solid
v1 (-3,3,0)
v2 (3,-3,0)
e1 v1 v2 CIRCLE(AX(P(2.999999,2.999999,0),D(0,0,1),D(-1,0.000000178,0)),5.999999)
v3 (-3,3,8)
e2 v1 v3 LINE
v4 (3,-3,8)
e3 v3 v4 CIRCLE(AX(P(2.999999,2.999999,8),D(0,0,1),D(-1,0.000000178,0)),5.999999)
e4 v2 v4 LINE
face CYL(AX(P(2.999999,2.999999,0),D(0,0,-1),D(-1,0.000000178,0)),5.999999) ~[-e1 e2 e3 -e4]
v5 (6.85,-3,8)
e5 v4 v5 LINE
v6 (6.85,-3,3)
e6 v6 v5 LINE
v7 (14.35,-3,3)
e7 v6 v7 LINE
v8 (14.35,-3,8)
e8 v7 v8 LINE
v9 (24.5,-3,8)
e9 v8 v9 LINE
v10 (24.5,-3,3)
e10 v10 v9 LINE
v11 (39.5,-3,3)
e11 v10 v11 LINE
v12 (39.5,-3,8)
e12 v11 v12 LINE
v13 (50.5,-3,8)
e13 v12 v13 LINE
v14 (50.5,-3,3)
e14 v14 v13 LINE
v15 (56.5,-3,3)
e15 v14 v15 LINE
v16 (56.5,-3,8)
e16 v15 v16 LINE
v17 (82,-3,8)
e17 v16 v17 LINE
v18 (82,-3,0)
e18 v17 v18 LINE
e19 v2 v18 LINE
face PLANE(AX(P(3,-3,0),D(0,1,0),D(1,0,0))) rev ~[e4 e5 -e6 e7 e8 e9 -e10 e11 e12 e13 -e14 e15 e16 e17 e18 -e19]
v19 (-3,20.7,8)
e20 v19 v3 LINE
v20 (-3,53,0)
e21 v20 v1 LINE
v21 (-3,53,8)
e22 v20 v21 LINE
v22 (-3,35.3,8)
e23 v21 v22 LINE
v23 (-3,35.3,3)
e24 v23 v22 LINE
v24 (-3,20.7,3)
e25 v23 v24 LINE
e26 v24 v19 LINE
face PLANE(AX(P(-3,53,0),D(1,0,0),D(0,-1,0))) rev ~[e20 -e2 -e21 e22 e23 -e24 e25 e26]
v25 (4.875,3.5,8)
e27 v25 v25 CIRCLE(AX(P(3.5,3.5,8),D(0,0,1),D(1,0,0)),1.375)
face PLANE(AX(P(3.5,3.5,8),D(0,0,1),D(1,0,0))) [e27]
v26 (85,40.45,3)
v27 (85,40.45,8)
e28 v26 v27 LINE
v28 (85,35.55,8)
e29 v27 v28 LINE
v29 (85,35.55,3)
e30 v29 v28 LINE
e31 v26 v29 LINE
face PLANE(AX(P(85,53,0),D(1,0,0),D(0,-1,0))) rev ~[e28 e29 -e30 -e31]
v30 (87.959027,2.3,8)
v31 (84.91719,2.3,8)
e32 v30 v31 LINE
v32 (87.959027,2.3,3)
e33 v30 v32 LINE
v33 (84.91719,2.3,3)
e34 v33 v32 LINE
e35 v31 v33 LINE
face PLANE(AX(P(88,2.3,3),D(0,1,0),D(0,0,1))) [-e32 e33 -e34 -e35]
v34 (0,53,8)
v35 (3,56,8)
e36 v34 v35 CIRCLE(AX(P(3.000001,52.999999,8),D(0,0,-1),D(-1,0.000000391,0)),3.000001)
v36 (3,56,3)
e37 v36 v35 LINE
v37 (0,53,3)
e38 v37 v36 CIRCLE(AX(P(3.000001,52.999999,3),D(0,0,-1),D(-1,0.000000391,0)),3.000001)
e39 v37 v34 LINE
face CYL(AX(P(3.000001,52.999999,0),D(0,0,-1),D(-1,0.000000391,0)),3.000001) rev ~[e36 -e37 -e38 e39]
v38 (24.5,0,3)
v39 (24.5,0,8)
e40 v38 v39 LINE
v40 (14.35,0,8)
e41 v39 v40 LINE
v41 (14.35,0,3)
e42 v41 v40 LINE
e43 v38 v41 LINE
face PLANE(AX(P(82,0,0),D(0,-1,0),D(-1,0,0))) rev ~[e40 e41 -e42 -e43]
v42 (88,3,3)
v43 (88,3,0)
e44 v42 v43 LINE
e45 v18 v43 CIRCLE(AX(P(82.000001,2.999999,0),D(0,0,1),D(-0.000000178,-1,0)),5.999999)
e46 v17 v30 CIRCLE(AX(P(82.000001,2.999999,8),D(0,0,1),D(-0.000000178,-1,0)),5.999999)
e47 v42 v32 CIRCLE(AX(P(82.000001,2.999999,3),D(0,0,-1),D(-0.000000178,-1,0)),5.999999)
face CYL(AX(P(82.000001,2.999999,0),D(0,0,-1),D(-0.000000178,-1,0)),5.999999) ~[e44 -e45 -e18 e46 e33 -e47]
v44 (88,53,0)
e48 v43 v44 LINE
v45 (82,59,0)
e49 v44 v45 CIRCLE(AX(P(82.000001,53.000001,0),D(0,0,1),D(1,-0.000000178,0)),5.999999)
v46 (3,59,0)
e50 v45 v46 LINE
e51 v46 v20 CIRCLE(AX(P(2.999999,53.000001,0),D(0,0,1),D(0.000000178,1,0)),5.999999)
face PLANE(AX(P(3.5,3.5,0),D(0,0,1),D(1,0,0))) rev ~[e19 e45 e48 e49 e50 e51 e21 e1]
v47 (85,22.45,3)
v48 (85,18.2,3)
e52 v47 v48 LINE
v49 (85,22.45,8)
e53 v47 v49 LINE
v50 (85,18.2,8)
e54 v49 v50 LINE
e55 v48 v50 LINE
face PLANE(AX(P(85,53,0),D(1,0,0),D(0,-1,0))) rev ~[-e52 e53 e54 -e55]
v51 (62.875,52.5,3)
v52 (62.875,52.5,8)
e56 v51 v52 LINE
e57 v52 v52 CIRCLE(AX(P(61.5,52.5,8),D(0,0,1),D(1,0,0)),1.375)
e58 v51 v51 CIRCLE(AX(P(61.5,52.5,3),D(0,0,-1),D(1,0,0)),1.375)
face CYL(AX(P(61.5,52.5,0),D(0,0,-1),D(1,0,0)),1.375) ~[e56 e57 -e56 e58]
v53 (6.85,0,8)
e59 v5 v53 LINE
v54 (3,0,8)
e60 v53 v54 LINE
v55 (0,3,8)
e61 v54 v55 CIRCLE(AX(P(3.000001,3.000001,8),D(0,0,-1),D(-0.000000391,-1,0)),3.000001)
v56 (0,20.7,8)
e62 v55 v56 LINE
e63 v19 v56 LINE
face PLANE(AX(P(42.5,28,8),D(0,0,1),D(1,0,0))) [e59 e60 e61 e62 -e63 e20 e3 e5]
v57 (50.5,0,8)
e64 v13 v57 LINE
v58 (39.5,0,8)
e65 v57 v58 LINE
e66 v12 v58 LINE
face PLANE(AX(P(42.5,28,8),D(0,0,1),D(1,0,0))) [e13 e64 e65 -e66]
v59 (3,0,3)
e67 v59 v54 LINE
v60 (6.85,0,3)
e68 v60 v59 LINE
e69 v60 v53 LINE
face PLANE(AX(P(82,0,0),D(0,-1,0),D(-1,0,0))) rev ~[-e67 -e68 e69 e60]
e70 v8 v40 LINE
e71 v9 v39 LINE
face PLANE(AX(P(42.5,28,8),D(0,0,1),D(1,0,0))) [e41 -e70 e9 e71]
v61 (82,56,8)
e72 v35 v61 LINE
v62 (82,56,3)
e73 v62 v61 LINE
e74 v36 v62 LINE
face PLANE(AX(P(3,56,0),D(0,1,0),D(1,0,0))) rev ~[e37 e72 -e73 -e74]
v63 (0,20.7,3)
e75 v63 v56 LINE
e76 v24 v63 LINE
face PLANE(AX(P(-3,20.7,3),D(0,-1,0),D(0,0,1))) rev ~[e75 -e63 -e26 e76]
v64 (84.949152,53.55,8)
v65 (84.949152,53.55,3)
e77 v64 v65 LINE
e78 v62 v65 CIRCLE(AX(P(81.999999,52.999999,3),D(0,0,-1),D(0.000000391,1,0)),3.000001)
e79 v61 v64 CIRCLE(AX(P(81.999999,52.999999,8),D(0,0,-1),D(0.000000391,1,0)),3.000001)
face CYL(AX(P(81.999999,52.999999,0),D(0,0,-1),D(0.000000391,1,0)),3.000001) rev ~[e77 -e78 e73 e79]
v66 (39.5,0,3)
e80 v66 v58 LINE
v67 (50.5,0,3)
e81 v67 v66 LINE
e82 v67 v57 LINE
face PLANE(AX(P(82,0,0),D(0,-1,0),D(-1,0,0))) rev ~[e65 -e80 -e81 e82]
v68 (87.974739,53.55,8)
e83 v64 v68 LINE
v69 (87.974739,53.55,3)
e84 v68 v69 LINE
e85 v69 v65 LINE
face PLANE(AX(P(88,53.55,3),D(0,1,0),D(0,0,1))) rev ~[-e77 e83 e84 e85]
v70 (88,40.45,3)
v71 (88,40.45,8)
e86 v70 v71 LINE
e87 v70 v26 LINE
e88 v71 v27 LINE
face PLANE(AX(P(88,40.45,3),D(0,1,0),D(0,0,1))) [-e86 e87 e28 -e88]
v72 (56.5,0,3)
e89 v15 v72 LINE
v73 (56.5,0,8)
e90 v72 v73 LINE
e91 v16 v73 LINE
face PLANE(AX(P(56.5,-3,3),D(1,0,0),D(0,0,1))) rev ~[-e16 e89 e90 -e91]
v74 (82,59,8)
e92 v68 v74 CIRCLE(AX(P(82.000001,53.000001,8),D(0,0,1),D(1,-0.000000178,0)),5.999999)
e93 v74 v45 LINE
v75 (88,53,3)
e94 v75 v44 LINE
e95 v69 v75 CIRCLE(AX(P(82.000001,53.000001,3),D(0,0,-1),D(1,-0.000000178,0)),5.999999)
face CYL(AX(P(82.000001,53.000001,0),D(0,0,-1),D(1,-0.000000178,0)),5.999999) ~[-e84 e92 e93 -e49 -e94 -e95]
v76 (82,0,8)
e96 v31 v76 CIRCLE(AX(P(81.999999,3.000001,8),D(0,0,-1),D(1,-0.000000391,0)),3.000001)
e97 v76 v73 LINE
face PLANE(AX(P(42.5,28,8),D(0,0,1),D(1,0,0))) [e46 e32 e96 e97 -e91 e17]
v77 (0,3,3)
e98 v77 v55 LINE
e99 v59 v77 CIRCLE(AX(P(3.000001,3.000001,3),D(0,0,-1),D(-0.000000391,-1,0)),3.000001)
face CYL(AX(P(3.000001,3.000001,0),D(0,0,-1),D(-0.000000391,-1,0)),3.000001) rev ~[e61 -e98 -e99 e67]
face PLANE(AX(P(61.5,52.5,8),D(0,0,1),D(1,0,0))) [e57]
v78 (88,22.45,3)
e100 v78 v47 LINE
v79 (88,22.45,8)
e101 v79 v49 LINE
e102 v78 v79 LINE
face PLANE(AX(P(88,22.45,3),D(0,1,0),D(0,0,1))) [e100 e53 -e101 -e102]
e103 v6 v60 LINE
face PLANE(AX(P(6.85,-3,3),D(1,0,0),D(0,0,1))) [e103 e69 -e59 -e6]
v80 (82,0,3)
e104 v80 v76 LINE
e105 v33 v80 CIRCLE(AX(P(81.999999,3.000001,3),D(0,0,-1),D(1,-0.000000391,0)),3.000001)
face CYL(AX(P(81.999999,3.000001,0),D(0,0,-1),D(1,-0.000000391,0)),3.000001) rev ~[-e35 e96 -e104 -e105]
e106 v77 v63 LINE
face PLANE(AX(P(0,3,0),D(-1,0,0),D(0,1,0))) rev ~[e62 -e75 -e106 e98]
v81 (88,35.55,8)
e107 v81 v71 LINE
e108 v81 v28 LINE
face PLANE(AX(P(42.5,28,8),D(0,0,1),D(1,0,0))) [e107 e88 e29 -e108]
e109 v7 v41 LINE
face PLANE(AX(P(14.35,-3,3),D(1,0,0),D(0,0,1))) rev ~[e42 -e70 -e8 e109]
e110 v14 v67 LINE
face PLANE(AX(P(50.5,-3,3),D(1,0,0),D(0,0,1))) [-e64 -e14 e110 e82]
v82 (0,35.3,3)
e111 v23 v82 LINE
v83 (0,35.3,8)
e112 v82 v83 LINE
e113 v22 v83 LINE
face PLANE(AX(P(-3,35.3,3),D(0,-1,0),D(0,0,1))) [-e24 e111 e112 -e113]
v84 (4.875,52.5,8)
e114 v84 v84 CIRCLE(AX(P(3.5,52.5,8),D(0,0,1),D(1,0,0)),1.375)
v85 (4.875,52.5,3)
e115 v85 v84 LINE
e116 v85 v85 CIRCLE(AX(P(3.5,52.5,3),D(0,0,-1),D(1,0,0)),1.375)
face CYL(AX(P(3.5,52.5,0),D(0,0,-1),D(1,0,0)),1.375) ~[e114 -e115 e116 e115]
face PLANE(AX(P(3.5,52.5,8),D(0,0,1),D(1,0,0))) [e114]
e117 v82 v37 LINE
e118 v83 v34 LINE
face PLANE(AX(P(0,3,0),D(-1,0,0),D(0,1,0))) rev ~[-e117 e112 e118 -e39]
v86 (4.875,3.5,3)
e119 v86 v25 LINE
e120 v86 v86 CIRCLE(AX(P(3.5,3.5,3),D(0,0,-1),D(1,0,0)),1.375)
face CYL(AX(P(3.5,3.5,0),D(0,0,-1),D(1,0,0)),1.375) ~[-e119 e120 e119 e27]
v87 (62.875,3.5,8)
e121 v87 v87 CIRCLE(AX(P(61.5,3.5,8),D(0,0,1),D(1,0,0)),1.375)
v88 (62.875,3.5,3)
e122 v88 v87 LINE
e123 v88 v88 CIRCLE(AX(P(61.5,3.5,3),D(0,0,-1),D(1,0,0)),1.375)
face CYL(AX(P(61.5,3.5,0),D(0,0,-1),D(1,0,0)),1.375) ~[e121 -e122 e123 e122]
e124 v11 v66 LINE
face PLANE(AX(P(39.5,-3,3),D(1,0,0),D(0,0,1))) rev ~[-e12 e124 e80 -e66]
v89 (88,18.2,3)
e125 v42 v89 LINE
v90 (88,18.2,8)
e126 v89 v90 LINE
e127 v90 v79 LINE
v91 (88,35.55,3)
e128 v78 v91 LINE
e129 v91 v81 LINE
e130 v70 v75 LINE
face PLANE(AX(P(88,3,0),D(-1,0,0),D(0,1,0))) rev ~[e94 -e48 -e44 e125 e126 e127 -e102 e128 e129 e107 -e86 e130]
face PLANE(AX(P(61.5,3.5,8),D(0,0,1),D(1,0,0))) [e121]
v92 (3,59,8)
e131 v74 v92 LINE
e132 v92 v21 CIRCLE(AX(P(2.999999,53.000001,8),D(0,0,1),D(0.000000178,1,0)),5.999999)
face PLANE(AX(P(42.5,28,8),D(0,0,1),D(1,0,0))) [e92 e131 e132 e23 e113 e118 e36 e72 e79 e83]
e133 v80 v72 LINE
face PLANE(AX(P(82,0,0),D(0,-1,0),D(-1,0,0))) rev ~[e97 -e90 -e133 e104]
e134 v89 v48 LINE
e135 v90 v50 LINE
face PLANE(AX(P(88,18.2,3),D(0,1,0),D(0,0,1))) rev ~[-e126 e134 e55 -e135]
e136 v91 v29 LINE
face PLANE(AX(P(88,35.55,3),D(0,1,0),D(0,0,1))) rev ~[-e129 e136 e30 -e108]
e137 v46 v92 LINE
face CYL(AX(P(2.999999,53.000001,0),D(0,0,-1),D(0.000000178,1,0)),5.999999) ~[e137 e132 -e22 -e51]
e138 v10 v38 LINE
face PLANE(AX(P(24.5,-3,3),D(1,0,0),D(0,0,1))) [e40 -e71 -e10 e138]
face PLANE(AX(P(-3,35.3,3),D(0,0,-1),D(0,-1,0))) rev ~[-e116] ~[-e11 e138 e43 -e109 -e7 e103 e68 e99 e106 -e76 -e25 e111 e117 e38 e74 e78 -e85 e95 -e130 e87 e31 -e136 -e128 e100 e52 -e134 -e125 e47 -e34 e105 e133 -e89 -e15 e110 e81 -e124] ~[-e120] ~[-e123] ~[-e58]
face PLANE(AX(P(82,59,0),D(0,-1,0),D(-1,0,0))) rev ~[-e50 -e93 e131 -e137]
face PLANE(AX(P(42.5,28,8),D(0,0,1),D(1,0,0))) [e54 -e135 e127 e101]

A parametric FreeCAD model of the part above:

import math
import FreeCAD as App
import Part
import Sketcher
from FreeCAD import Vector
Q = App.Units.Quantity

doc = App.newDocument("Part")
params = doc.addObject("Spreadsheet::Sheet", "Params")
for row, (alias, value) in enumerate([
    ("sketch1_radius", "5.999999 mm"),
    ("sketch1_width", "79 mm"),
    ("sketch1_height", "50 mm"),
    ("pad1_length", "8 mm"),
    ("sketch2_radius", "5.999999 mm"),
    ("sketch2_width", "79 mm"),
    ("sketch2_height", "50 mm"),
    ("pad2_length", "3 mm"),
    ("sketch3_diameter", "2.75 mm"),
    ("pad3_length", "8 mm"),
    ("sketch4_height", "5 mm"),
    ("sketch4_width", "7.5 mm"),
    ("pocket1_length", "3 mm"),
    ("sketch5_width", "15 mm"),
    ("sketch5_width2", "6 mm"),
    ("sketch5_height", "5 mm"),
    ("sketch5_width3", "7.5 mm"),
    ("pocket2_length", "3 mm"),
    ("sketch6_height", "5 mm"),
    ("sketch6_width", "15.9 mm"),
    ("sketch6_width2", "13.1 mm"),
    ("pocket3_length", "3 mm"),
    ("sketch7_height", "5 mm"),
    ("sketch7_width", "14.6 mm"),
    ("pocket4_length", "3 mm"),
    ("sketch8_height", "5 mm"),
    ("sketch8_width", "15.9 mm"),
    ("sketch8_width2", "13.1 mm"),
    ("pocket5_length", "10 mm"),
], start=1):
    params.set(f"A{row}", alias)
    params.set(f"B{row}", "=" + value)
    params.setAlias(f"B{row}", alias)

body = doc.addObject("PartDesign::Body", "Body")

sketch1 = body.newObject("Sketcher::SketchObject", "Sketch")
sketch1.AttachmentSupport = (doc.getObject("XY_Plane"), [""])
sketch1.MapMode = "FlatFace"
sketch1.addGeometry(Part.LineSegment(Vector(82, 59, 0), Vector(3, 59, 0)), False)
sketch1.addGeometry(Part.ArcOfCircle(Part.Circle(Vector(2.999999, 53.000001, 0), Vector(0, 0, 1), 5.999999), math.radians(89.99999), math.radians(180.00001)), False)
sketch1.addGeometry(Part.LineSegment(Vector(-3, 53, 0), Vector(-3, 3, 0)), False)
sketch1.addGeometry(Part.ArcOfCircle(Part.Circle(Vector(2.999999, 2.999999, 0), Vector(0, 0, 1), 5.999999), math.radians(179.99999), math.radians(270.00001)), False)
sketch1.addGeometry(Part.LineSegment(Vector(3, -3, 0), Vector(82, -3, 0)), False)
sketch1.addGeometry(Part.ArcOfCircle(Part.Circle(Vector(82.000001, 2.999999, 0), Vector(0, 0, 1), 5.999999), math.radians(-90.00001), math.radians(0.00001)), False)
sketch1.addGeometry(Part.LineSegment(Vector(88, 3, 0), Vector(88, 53, 0)), False)
sketch1.addGeometry(Part.ArcOfCircle(Part.Circle(Vector(82.000001, 53.000001, 0), Vector(0, 0, 1), 5.999999), math.radians(-0.00001), math.radians(90.00001)), False)
sketch1.addGeometry(Part.ArcOfCircle(Part.Circle(Vector(81.999999, 3.000001, 0), Vector(0, 0, 1), 3.000001), math.radians(-89.999978), math.radians(-0.000022)), False)
sketch1.addGeometry(Part.LineSegment(Vector(82, 0, 0), Vector(3, 0, 0)), False)
sketch1.addGeometry(Part.ArcOfCircle(Part.Circle(Vector(3.000001, 3.000001, 0), Vector(0, 0, 1), 3.000001), math.radians(-179.999978), math.radians(-90.000022)), False)
sketch1.addGeometry(Part.LineSegment(Vector(0, 3, 0), Vector(0, 53, 0)), False)
sketch1.addGeometry(Part.ArcOfCircle(Part.Circle(Vector(3.000001, 52.999999, 0), Vector(0, 0, 1), 3.000001), math.radians(90.000022), math.radians(179.999978)), False)
sketch1.addGeometry(Part.LineSegment(Vector(3, 56, 0), Vector(82, 56, 0)), False)
sketch1.addGeometry(Part.ArcOfCircle(Part.Circle(Vector(81.999999, 52.999999, 0), Vector(0, 0, 1), 3.000001), math.radians(0.000022), math.radians(89.999978)), False)
sketch1.addGeometry(Part.LineSegment(Vector(85, 53, 0), Vector(85, 3, 0)), False)
sketch1.addConstraint(Sketcher.Constraint("Tangent", 0, 2, 1, 1))
sketch1.addConstraint(Sketcher.Constraint("Tangent", 1, 2, 2, 1))
sketch1.addConstraint(Sketcher.Constraint("Tangent", 2, 2, 3, 1))
sketch1.addConstraint(Sketcher.Constraint("Tangent", 3, 2, 4, 1))
sketch1.addConstraint(Sketcher.Constraint("Tangent", 4, 2, 5, 1))
sketch1.addConstraint(Sketcher.Constraint("Tangent", 5, 2, 6, 1))
sketch1.addConstraint(Sketcher.Constraint("Tangent", 6, 2, 7, 1))
sketch1.addConstraint(Sketcher.Constraint("Tangent", 7, 2, 0, 1))
sketch1.addConstraint(Sketcher.Constraint("Tangent", 8, 1, 9, 1))
sketch1.addConstraint(Sketcher.Constraint("Tangent", 9, 2, 10, 2))
sketch1.addConstraint(Sketcher.Constraint("Tangent", 10, 1, 11, 1))
sketch1.addConstraint(Sketcher.Constraint("Tangent", 11, 2, 12, 2))
sketch1.addConstraint(Sketcher.Constraint("Tangent", 12, 1, 13, 1))
sketch1.addConstraint(Sketcher.Constraint("Tangent", 13, 2, 14, 2))
sketch1.addConstraint(Sketcher.Constraint("Tangent", 14, 1, 15, 1))
sketch1.addConstraint(Sketcher.Constraint("Tangent", 15, 2, 8, 2))
sketch1.addConstraint(Sketcher.Constraint("Horizontal", 0))
sketch1.addConstraint(Sketcher.Constraint("Vertical", 2))
sketch1.addConstraint(Sketcher.Constraint("Horizontal", 4))
sketch1.addConstraint(Sketcher.Constraint("Vertical", 6))
sketch1.addConstraint(Sketcher.Constraint("Horizontal", 9))
sketch1.addConstraint(Sketcher.Constraint("Vertical", 11))
sketch1.addConstraint(Sketcher.Constraint("Horizontal", 13))
sketch1.addConstraint(Sketcher.Constraint("Vertical", 15))
sketch1.addConstraint(Sketcher.Constraint("Coincident", 8, 3, 5, 3))
sketch1.addConstraint(Sketcher.Constraint("Coincident", 10, 3, 3, 3))
sketch1.addConstraint(Sketcher.Constraint("Coincident", 12, 3, 1, 3))
sketch1.addConstraint(Sketcher.Constraint("Equal", 1, 3))
sketch1.addConstraint(Sketcher.Constraint("Equal", 3, 5))
sketch1.addConstraint(Sketcher.Constraint("Equal", 5, 7))
sketch1.addConstraint(Sketcher.Constraint("Equal", 12, 14))
sketch1.addConstraint(Sketcher.Constraint("Symmetric", 2, 2, 3, 2, -1, 1))
sketch1.addConstraint(Sketcher.Constraint("PointOnObject", 8, 1, -1))
sketch1.addConstraint(Sketcher.Constraint("Radius", 1, Q("5.999999 mm")))
sketch1.addConstraint(Sketcher.Constraint("DistanceX", 0, 2, 0, 1, Q("79 mm")))
sketch1.addConstraint(Sketcher.Constraint("DistanceY", 2, 2, 2, 1, Q("50 mm")))
sketch1.setExpression("Constraints[33]", "Params.sketch1_radius")
sketch1.setExpression("Constraints[34]", "Params.sketch1_width")
sketch1.setExpression("Constraints[35]", "Params.sketch1_height")
pad1 = body.newObject("PartDesign::Pad", "Pad")
pad1.Profile = sketch1
pad1.setExpression("Length", "Params.pad1_length")

sketch2 = body.newObject("Sketcher::SketchObject", "Sketch001")
sketch2.AttachmentSupport = (doc.getObject("XY_Plane"), [""])
sketch2.MapMode = "FlatFace"
sketch2.addGeometry(Part.LineSegment(Vector(82, 59, 0), Vector(3, 59, 0)), False)
sketch2.addGeometry(Part.ArcOfCircle(Part.Circle(Vector(2.999999, 53.000001, 0), Vector(0, 0, 1), 5.999999), math.radians(89.99999), math.radians(180.00001)), False)
sketch2.addGeometry(Part.LineSegment(Vector(-3, 53, 0), Vector(-3, 3, 0)), False)
sketch2.addGeometry(Part.ArcOfCircle(Part.Circle(Vector(2.999999, 2.999999, 0), Vector(0, 0, 1), 5.999999), math.radians(179.99999), math.radians(270.00001)), False)
sketch2.addGeometry(Part.LineSegment(Vector(3, -3, 0), Vector(82, -3, 0)), False)
sketch2.addGeometry(Part.ArcOfCircle(Part.Circle(Vector(82.000001, 2.999999, 0), Vector(0, 0, 1), 5.999999), math.radians(-90.00001), math.radians(0.00001)), False)
sketch2.addGeometry(Part.LineSegment(Vector(88, 3, 0), Vector(88, 53, 0)), False)
sketch2.addGeometry(Part.ArcOfCircle(Part.Circle(Vector(82.000001, 53.000001, 0), Vector(0, 0, 1), 5.999999), math.radians(-0.00001), math.radians(90.00001)), False)
sketch2.addConstraint(Sketcher.Constraint("Tangent", 0, 2, 1, 1))
sketch2.addConstraint(Sketcher.Constraint("Tangent", 1, 2, 2, 1))
sketch2.addConstraint(Sketcher.Constraint("Tangent", 2, 2, 3, 1))
sketch2.addConstraint(Sketcher.Constraint("Tangent", 3, 2, 4, 1))
sketch2.addConstraint(Sketcher.Constraint("Tangent", 4, 2, 5, 1))
sketch2.addConstraint(Sketcher.Constraint("Tangent", 5, 2, 6, 1))
sketch2.addConstraint(Sketcher.Constraint("Tangent", 6, 2, 7, 1))
sketch2.addConstraint(Sketcher.Constraint("Tangent", 7, 2, 0, 1))
sketch2.addConstraint(Sketcher.Constraint("Horizontal", 0))
sketch2.addConstraint(Sketcher.Constraint("Vertical", 2))
sketch2.addConstraint(Sketcher.Constraint("Horizontal", 4))
sketch2.addConstraint(Sketcher.Constraint("Vertical", 6))
sketch2.addConstraint(Sketcher.Constraint("Equal", 1, 3))
sketch2.addConstraint(Sketcher.Constraint("Equal", 3, 5))
sketch2.addConstraint(Sketcher.Constraint("Equal", 5, 7))
sketch2.addConstraint(Sketcher.Constraint("Symmetric", 2, 2, 3, 2, -1, 1))
sketch2.addConstraint(Sketcher.Constraint("Radius", 1, Q("5.999999 mm")))
sketch2.addConstraint(Sketcher.Constraint("DistanceX", 0, 2, 0, 1, Q("79 mm")))
sketch2.addConstraint(Sketcher.Constraint("DistanceY", 2, 2, 2, 1, Q("50 mm")))
sketch2.setExpression("Constraints[16]", "Params.sketch2_radius")
sketch2.setExpression("Constraints[17]", "Params.sketch2_width")
sketch2.setExpression("Constraints[18]", "Params.sketch2_height")
pad2 = body.newObject("PartDesign::Pad", "Pad001")
pad2.Profile = sketch2
pad2.setExpression("Length", "Params.pad2_length")

sketch3 = body.newObject("Sketcher::SketchObject", "Sketch002")
sketch3.AttachmentSupport = (doc.getObject("XY_Plane"), [""])
sketch3.MapMode = "FlatFace"
sketch3.addGeometry(Part.Circle(Vector(3.5, 3.5, 0), Vector(0, 0, 1), 1.375), False)
sketch3.addGeometry(Part.Circle(Vector(61.5, 3.5, 0), Vector(0, 0, 1), 1.375), False)
sketch3.addGeometry(Part.Circle(Vector(3.5, 52.5, 0), Vector(0, 0, 1), 1.375), False)
sketch3.addGeometry(Part.Circle(Vector(61.5, 52.5, 0), Vector(0, 0, 1), 1.375), False)
sketch3.addConstraint(Sketcher.Constraint("Equal", 0, 1))
sketch3.addConstraint(Sketcher.Constraint("Equal", 1, 2))
sketch3.addConstraint(Sketcher.Constraint("Equal", 2, 3))
sketch3.addConstraint(Sketcher.Constraint("Horizontal", 0, 3, 1, 3))
sketch3.addConstraint(Sketcher.Constraint("Horizontal", 2, 3, 3, 3))
sketch3.addConstraint(Sketcher.Constraint("Vertical", 0, 3, 2, 3))
sketch3.addConstraint(Sketcher.Constraint("Vertical", 1, 3, 3, 3))
sketch3.addConstraint(Sketcher.Constraint("Diameter", 0, Q("2.75 mm")))
sketch3.addConstraint(Sketcher.Constraint("DistanceX", 0, 3, 1, 3, Q("58 mm")))
sketch3.addConstraint(Sketcher.Constraint("DistanceY", 0, 3, 2, 3, Q("49 mm")))
sketch3.addConstraint(Sketcher.Constraint("DistanceX", -1, 1, 0, 3, Q("3.5 mm")))
sketch3.addConstraint(Sketcher.Constraint("DistanceY", -1, 1, 0, 3, Q("3.5 mm")))
sketch3.setExpression("Constraints[7]", "Params.sketch3_diameter")
pad3 = body.newObject("PartDesign::Pad", "Pad002")
pad3.Profile = sketch3
pad3.setExpression("Length", "Params.pad3_length")

sketch4 = body.newObject("Sketcher::SketchObject", "Sketch003")
sketch4.AttachmentSupport = (doc.getObject("XZ_Plane"), [""])
sketch4.MapMode = "FlatFace"
sketch4.AttachmentOffset = App.Placement(Vector(0, 0, 3), App.Rotation())
sketch4.addGeometry(Part.LineSegment(Vector(6.85, 8, 0), Vector(6.85, 3, 0)), False)
sketch4.addGeometry(Part.LineSegment(Vector(6.85, 3, 0), Vector(14.35, 3, 0)), False)
sketch4.addGeometry(Part.LineSegment(Vector(14.35, 3, 0), Vector(14.35, 8, 0)), False)
sketch4.addGeometry(Part.LineSegment(Vector(14.35, 8, 0), Vector(6.85, 8, 0)), False)
sketch4.addConstraint(Sketcher.Constraint("Coincident", 0, 2, 1, 1))
sketch4.addConstraint(Sketcher.Constraint("Coincident", 1, 2, 2, 1))
sketch4.addConstraint(Sketcher.Constraint("Coincident", 2, 2, 3, 1))
sketch4.addConstraint(Sketcher.Constraint("Coincident", 3, 2, 0, 1))
sketch4.addConstraint(Sketcher.Constraint("Vertical", 0))
sketch4.addConstraint(Sketcher.Constraint("Horizontal", 1))
sketch4.addConstraint(Sketcher.Constraint("Vertical", 2))
sketch4.addConstraint(Sketcher.Constraint("Horizontal", 3))
sketch4.addConstraint(Sketcher.Constraint("DistanceY", 0, 2, 0, 1, Q("5 mm")))
sketch4.addConstraint(Sketcher.Constraint("DistanceX", 1, 1, 1, 2, Q("7.5 mm")))
sketch4.addConstraint(Sketcher.Constraint("DistanceY", -1, 1, 0, 2, Q("3 mm")))
sketch4.addConstraint(Sketcher.Constraint("DistanceX", -1, 1, 0, 2, Q("6.85 mm")))
sketch4.setExpression("Constraints[8]", "Params.sketch4_height")
sketch4.setExpression("Constraints[9]", "Params.sketch4_width")
pocket1 = body.newObject("PartDesign::Pocket", "Pocket")
pocket1.Profile = sketch4
pocket1.setExpression("Length", "Params.pocket1_length")

sketch5 = body.newObject("Sketcher::SketchObject", "Sketch004")
sketch5.AttachmentSupport = (doc.getObject("XZ_Plane"), [""])
sketch5.MapMode = "FlatFace"
sketch5.AttachmentOffset = App.Placement(Vector(0, 0, 3), App.Rotation())
sketch5.addGeometry(Part.LineSegment(Vector(6.85, 8, 0), Vector(6.85, 3, 0)), False)
sketch5.addGeometry(Part.LineSegment(Vector(6.85, 3, 0), Vector(14.35, 3, 0)), False)
sketch5.addGeometry(Part.LineSegment(Vector(14.35, 3, 0), Vector(14.35, 8, 0)), False)
sketch5.addGeometry(Part.LineSegment(Vector(14.35, 8, 0), Vector(6.85, 8, 0)), False)
sketch5.addGeometry(Part.LineSegment(Vector(24.5, 8, 0), Vector(24.5, 3, 0)), False)
sketch5.addGeometry(Part.LineSegment(Vector(24.5, 3, 0), Vector(39.5, 3, 0)), False)
sketch5.addGeometry(Part.LineSegment(Vector(39.5, 3, 0), Vector(39.5, 8, 0)), False)
sketch5.addGeometry(Part.LineSegment(Vector(39.5, 8, 0), Vector(24.5, 8, 0)), False)
sketch5.addGeometry(Part.LineSegment(Vector(50.5, 8, 0), Vector(50.5, 3, 0)), False)
sketch5.addGeometry(Part.LineSegment(Vector(50.5, 3, 0), Vector(56.5, 3, 0)), False)
sketch5.addGeometry(Part.LineSegment(Vector(56.5, 3, 0), Vector(56.5, 8, 0)), False)
sketch5.addGeometry(Part.LineSegment(Vector(56.5, 8, 0), Vector(50.5, 8, 0)), False)
sketch5.addConstraint(Sketcher.Constraint("Coincident", 0, 2, 1, 1))
sketch5.addConstraint(Sketcher.Constraint("Coincident", 1, 2, 2, 1))
sketch5.addConstraint(Sketcher.Constraint("Coincident", 2, 2, 3, 1))
sketch5.addConstraint(Sketcher.Constraint("Coincident", 3, 2, 0, 1))
sketch5.addConstraint(Sketcher.Constraint("Coincident", 4, 2, 5, 1))
sketch5.addConstraint(Sketcher.Constraint("Coincident", 5, 2, 6, 1))
sketch5.addConstraint(Sketcher.Constraint("Coincident", 6, 2, 7, 1))
sketch5.addConstraint(Sketcher.Constraint("Coincident", 7, 2, 4, 1))
sketch5.addConstraint(Sketcher.Constraint("Coincident", 8, 2, 9, 1))
sketch5.addConstraint(Sketcher.Constraint("Coincident", 9, 2, 10, 1))
sketch5.addConstraint(Sketcher.Constraint("Coincident", 10, 2, 11, 1))
sketch5.addConstraint(Sketcher.Constraint("Coincident", 11, 2, 8, 1))
sketch5.addConstraint(Sketcher.Constraint("Vertical", 0))
sketch5.addConstraint(Sketcher.Constraint("Horizontal", 1))
sketch5.addConstraint(Sketcher.Constraint("Vertical", 2))
sketch5.addConstraint(Sketcher.Constraint("Horizontal", 3))
sketch5.addConstraint(Sketcher.Constraint("Vertical", 4))
sketch5.addConstraint(Sketcher.Constraint("Horizontal", 5))
sketch5.addConstraint(Sketcher.Constraint("Vertical", 6))
sketch5.addConstraint(Sketcher.Constraint("Horizontal", 7))
sketch5.addConstraint(Sketcher.Constraint("Vertical", 8))
sketch5.addConstraint(Sketcher.Constraint("Horizontal", 9))
sketch5.addConstraint(Sketcher.Constraint("Vertical", 10))
sketch5.addConstraint(Sketcher.Constraint("Horizontal", 11))
sketch5.addConstraint(Sketcher.Constraint("Horizontal", 1, 2, 4, 2))
sketch5.addConstraint(Sketcher.Constraint("Horizontal", 3, 2, 6, 2))
sketch5.addConstraint(Sketcher.Constraint("Horizontal", 5, 2, 8, 2))
sketch5.addConstraint(Sketcher.Constraint("Horizontal", 7, 2, 10, 2))
sketch5.addConstraint(Sketcher.Constraint("DistanceX", 5, 1, 5, 2, Q("15 mm")))
sketch5.addConstraint(Sketcher.Constraint("DistanceX", 9, 1, 9, 2, Q("6 mm")))
sketch5.addConstraint(Sketcher.Constraint("DistanceY", 0, 2, 0, 1, Q("5 mm")))
sketch5.addConstraint(Sketcher.Constraint("DistanceX", 1, 1, 1, 2, Q("7.5 mm")))
sketch5.addConstraint(Sketcher.Constraint("DistanceY", -1, 1, 0, 2, Q("3 mm")))
sketch5.addConstraint(Sketcher.Constraint("DistanceX", 5, 2, 8, 2, Q("11 mm")))
sketch5.addConstraint(Sketcher.Constraint("DistanceX", -1, 1, 4, 2, Q("24.5 mm")))
sketch5.addConstraint(Sketcher.Constraint("DistanceX", -1, 1, 0, 2, Q("6.85 mm")))
sketch5.setExpression("Constraints[28]", "Params.sketch5_width")
sketch5.setExpression("Constraints[29]", "Params.sketch5_width2")
sketch5.setExpression("Constraints[30]", "Params.sketch5_height")
sketch5.setExpression("Constraints[31]", "Params.sketch5_width3")
pocket2 = body.newObject("PartDesign::Pocket", "Pocket001")
pocket2.Profile = sketch5
pocket2.setExpression("Length", "Params.pocket2_length")

sketch6 = body.newObject("Sketcher::SketchObject", "Sketch005")
sketch6.AttachmentSupport = (doc.getObject("YZ_Plane"), [""])
sketch6.MapMode = "FlatFace"
sketch6.AttachmentOffset = App.Placement(Vector(0, 0, 88), App.Rotation())
sketch6.addGeometry(Part.LineSegment(Vector(2.3, 8, 0), Vector(2.3, 3, 0)), False)
sketch6.addGeometry(Part.LineSegment(Vector(2.3, 3, 0), Vector(18.2, 3, 0)), False)
sketch6.addGeometry(Part.LineSegment(Vector(18.2, 3, 0), Vector(18.2, 8, 0)), False)
sketch6.addGeometry(Part.LineSegment(Vector(18.2, 8, 0), Vector(2.3, 8, 0)), False)
sketch6.addGeometry(Part.LineSegment(Vector(22.45, 8, 0), Vector(22.45, 3, 0)), False)
sketch6.addGeometry(Part.LineSegment(Vector(22.45, 3, 0), Vector(35.55, 3, 0)), False)
sketch6.addGeometry(Part.LineSegment(Vector(35.55, 3, 0), Vector(35.55, 8, 0)), False)
sketch6.addGeometry(Part.LineSegment(Vector(35.55, 8, 0), Vector(22.45, 8, 0)), False)
sketch6.addGeometry(Part.LineSegment(Vector(40.45, 8, 0), Vector(40.45, 3, 0)), False)
sketch6.addGeometry(Part.LineSegment(Vector(40.45, 3, 0), Vector(53.55, 3, 0)), False)
sketch6.addGeometry(Part.LineSegment(Vector(53.55, 3, 0), Vector(53.55, 8, 0)), False)
sketch6.addGeometry(Part.LineSegment(Vector(53.55, 8, 0), Vector(40.45, 8, 0)), False)
sketch6.addConstraint(Sketcher.Constraint("Coincident", 0, 2, 1, 1))
sketch6.addConstraint(Sketcher.Constraint("Coincident", 1, 2, 2, 1))
sketch6.addConstraint(Sketcher.Constraint("Coincident", 2, 2, 3, 1))
sketch6.addConstraint(Sketcher.Constraint("Coincident", 3, 2, 0, 1))
sketch6.addConstraint(Sketcher.Constraint("Coincident", 4, 2, 5, 1))
sketch6.addConstraint(Sketcher.Constraint("Coincident", 5, 2, 6, 1))
sketch6.addConstraint(Sketcher.Constraint("Coincident", 6, 2, 7, 1))
sketch6.addConstraint(Sketcher.Constraint("Coincident", 7, 2, 4, 1))
sketch6.addConstraint(Sketcher.Constraint("Coincident", 8, 2, 9, 1))
sketch6.addConstraint(Sketcher.Constraint("Coincident", 9, 2, 10, 1))
sketch6.addConstraint(Sketcher.Constraint("Coincident", 10, 2, 11, 1))
sketch6.addConstraint(Sketcher.Constraint("Coincident", 11, 2, 8, 1))
sketch6.addConstraint(Sketcher.Constraint("Vertical", 0))
sketch6.addConstraint(Sketcher.Constraint("Horizontal", 1))
sketch6.addConstraint(Sketcher.Constraint("Vertical", 2))
sketch6.addConstraint(Sketcher.Constraint("Horizontal", 3))
sketch6.addConstraint(Sketcher.Constraint("Vertical", 4))
sketch6.addConstraint(Sketcher.Constraint("Horizontal", 5))
sketch6.addConstraint(Sketcher.Constraint("Vertical", 6))
sketch6.addConstraint(Sketcher.Constraint("Horizontal", 7))
sketch6.addConstraint(Sketcher.Constraint("Vertical", 8))
sketch6.addConstraint(Sketcher.Constraint("Horizontal", 9))
sketch6.addConstraint(Sketcher.Constraint("Vertical", 10))
sketch6.addConstraint(Sketcher.Constraint("Horizontal", 11))
sketch6.addConstraint(Sketcher.Constraint("Horizontal", 1, 2, 4, 2))
sketch6.addConstraint(Sketcher.Constraint("Horizontal", 3, 2, 6, 2))
sketch6.addConstraint(Sketcher.Constraint("Horizontal", 5, 2, 8, 2))
sketch6.addConstraint(Sketcher.Constraint("Horizontal", 7, 2, 10, 2))
sketch6.addConstraint(Sketcher.Constraint("Equal", 7, 9))
sketch6.addConstraint(Sketcher.Constraint("DistanceY", 0, 2, 0, 1, Q("5 mm")))
sketch6.addConstraint(Sketcher.Constraint("DistanceX", 1, 1, 1, 2, Q("15.9 mm")))
sketch6.addConstraint(Sketcher.Constraint("DistanceX", 5, 1, 5, 2, Q("13.1 mm")))
sketch6.addConstraint(Sketcher.Constraint("DistanceY", -1, 1, 0, 2, Q("3 mm")))
sketch6.addConstraint(Sketcher.Constraint("DistanceX", 4, 2, 8, 2, Q("18 mm")))
sketch6.addConstraint(Sketcher.Constraint("DistanceX", -1, 1, 0, 2, Q("2.3 mm")))
sketch6.addConstraint(Sketcher.Constraint("DistanceX", -1, 1, 4, 2, Q("22.45 mm")))
sketch6.setExpression("Constraints[29]", "Params.sketch6_height")
sketch6.setExpression("Constraints[30]", "Params.sketch6_width")
sketch6.setExpression("Constraints[31]", "Params.sketch6_width2")
pocket3 = body.newObject("PartDesign::Pocket", "Pocket002")
pocket3.Profile = sketch6
pocket3.setExpression("Length", "Params.pocket3_length")

sketch7 = body.newObject("Sketcher::SketchObject", "Sketch006")
sketch7.AttachmentSupport = (doc.getObject("YZ_Plane"), [""])
sketch7.MapMode = "FlatFace"
sketch7.AttachmentOffset = App.Placement(Vector(0, 0, -3), App.Rotation())
sketch7.addGeometry(Part.LineSegment(Vector(35.3, 8, 0), Vector(35.3, 3, 0)), False)
sketch7.addGeometry(Part.LineSegment(Vector(35.3, 3, 0), Vector(20.7, 3, 0)), False)
sketch7.addGeometry(Part.LineSegment(Vector(20.7, 3, 0), Vector(20.7, 8, 0)), False)
sketch7.addGeometry(Part.LineSegment(Vector(20.7, 8, 0), Vector(35.3, 8, 0)), False)
sketch7.addConstraint(Sketcher.Constraint("Coincident", 0, 2, 1, 1))
sketch7.addConstraint(Sketcher.Constraint("Coincident", 1, 2, 2, 1))
sketch7.addConstraint(Sketcher.Constraint("Coincident", 2, 2, 3, 1))
sketch7.addConstraint(Sketcher.Constraint("Coincident", 3, 2, 0, 1))
sketch7.addConstraint(Sketcher.Constraint("Vertical", 0))
sketch7.addConstraint(Sketcher.Constraint("Horizontal", 1))
sketch7.addConstraint(Sketcher.Constraint("Vertical", 2))
sketch7.addConstraint(Sketcher.Constraint("Horizontal", 3))
sketch7.addConstraint(Sketcher.Constraint("DistanceY", 0, 2, 0, 1, Q("5 mm")))
sketch7.addConstraint(Sketcher.Constraint("DistanceX", 1, 2, 1, 1, Q("14.6 mm")))
sketch7.addConstraint(Sketcher.Constraint("DistanceY", -1, 1, 0, 2, Q("3 mm")))
sketch7.addConstraint(Sketcher.Constraint("DistanceX", -1, 1, 0, 2, Q("35.3 mm")))
sketch7.setExpression("Constraints[8]", "Params.sketch7_height")
sketch7.setExpression("Constraints[9]", "Params.sketch7_width")
pocket4 = body.newObject("PartDesign::Pocket", "Pocket003")
pocket4.Profile = sketch7
pocket4.setExpression("Length", "Params.pocket4_length")
pocket4.Reversed = True

sketch8 = body.newObject("Sketcher::SketchObject", "Sketch007")
sketch8.AttachmentSupport = (doc.getObject("YZ_Plane"), [""])
sketch8.MapMode = "FlatFace"
sketch8.AttachmentOffset = App.Placement(Vector(0, 0, 88), App.Rotation())
sketch8.addGeometry(Part.LineSegment(Vector(2.3, 8, 0), Vector(2.3, 3, 0)), False)
sketch8.addGeometry(Part.LineSegment(Vector(2.3, 3, 0), Vector(18.2, 3, 0)), False)
sketch8.addGeometry(Part.LineSegment(Vector(18.2, 3, 0), Vector(18.2, 8, 0)), False)
sketch8.addGeometry(Part.LineSegment(Vector(18.2, 8, 0), Vector(2.3, 8, 0)), False)
sketch8.addGeometry(Part.LineSegment(Vector(22.45, 8, 0), Vector(22.45, 3, 0)), False)
sketch8.addGeometry(Part.LineSegment(Vector(22.45, 3, 0), Vector(35.55, 3, 0)), False)
sketch8.addGeometry(Part.LineSegment(Vector(35.55, 3, 0), Vector(35.55, 8, 0)), False)
sketch8.addGeometry(Part.LineSegment(Vector(35.55, 8, 0), Vector(22.45, 8, 0)), False)
sketch8.addGeometry(Part.LineSegment(Vector(40.45, 8, 0), Vector(40.45, 3, 0)), False)
sketch8.addGeometry(Part.LineSegment(Vector(40.45, 3, 0), Vector(53.55, 3, 0)), False)
sketch8.addGeometry(Part.LineSegment(Vector(53.55, 3, 0), Vector(53.55, 8, 0)), False)
sketch8.addGeometry(Part.LineSegment(Vector(53.55, 8, 0), Vector(40.45, 8, 0)), False)
sketch8.addConstraint(Sketcher.Constraint("Coincident", 0, 2, 1, 1))
sketch8.addConstraint(Sketcher.Constraint("Coincident", 1, 2, 2, 1))
sketch8.addConstraint(Sketcher.Constraint("Coincident", 2, 2, 3, 1))
sketch8.addConstraint(Sketcher.Constraint("Coincident", 3, 2, 0, 1))
sketch8.addConstraint(Sketcher.Constraint("Coincident", 4, 2, 5, 1))
sketch8.addConstraint(Sketcher.Constraint("Coincident", 5, 2, 6, 1))
sketch8.addConstraint(Sketcher.Constraint("Coincident", 6, 2, 7, 1))
sketch8.addConstraint(Sketcher.Constraint("Coincident", 7, 2, 4, 1))
sketch8.addConstraint(Sketcher.Constraint("Coincident", 8, 2, 9, 1))
sketch8.addConstraint(Sketcher.Constraint("Coincident", 9, 2, 10, 1))
sketch8.addConstraint(Sketcher.Constraint("Coincident", 10, 2, 11, 1))
sketch8.addConstraint(Sketcher.Constraint("Coincident", 11, 2, 8, 1))
sketch8.addConstraint(Sketcher.Constraint("Vertical", 0))
sketch8.addConstraint(Sketcher.Constraint("Horizontal", 1))
sketch8.addConstraint(Sketcher.Constraint("Vertical", 2))
sketch8.addConstraint(Sketcher.Constraint("Horizontal", 3))
sketch8.addConstraint(Sketcher.Constraint("Vertical", 4))
sketch8.addConstraint(Sketcher.Constraint("Horizontal", 5))
sketch8.addConstraint(Sketcher.Constraint("Vertical", 6))
sketch8.addConstraint(Sketcher.Constraint("Horizontal", 7))
sketch8.addConstraint(Sketcher.Constraint("Vertical", 8))
sketch8.addConstraint(Sketcher.Constraint("Horizontal", 9))
sketch8.addConstraint(Sketcher.Constraint("Vertical", 10))
sketch8.addConstraint(Sketcher.Constraint("Horizontal", 11))
sketch8.addConstraint(Sketcher.Constraint("Horizontal", 1, 2, 4, 2))
sketch8.addConstraint(Sketcher.Constraint("Horizontal", 3, 2, 6, 2))
sketch8.addConstraint(Sketcher.Constraint("Horizontal", 5, 2, 8, 2))
sketch8.addConstraint(Sketcher.Constraint("Horizontal", 7, 2, 10, 2))
sketch8.addConstraint(Sketcher.Constraint("Equal", 7, 9))
sketch8.addConstraint(Sketcher.Constraint("DistanceY", 0, 2, 0, 1, Q("5 mm")))
sketch8.addConstraint(Sketcher.Constraint("DistanceX", 1, 1, 1, 2, Q("15.9 mm")))
sketch8.addConstraint(Sketcher.Constraint("DistanceX", 5, 1, 5, 2, Q("13.1 mm")))
sketch8.addConstraint(Sketcher.Constraint("DistanceY", -1, 1, 0, 2, Q("3 mm")))
sketch8.addConstraint(Sketcher.Constraint("DistanceX", 4, 2, 8, 2, Q("18 mm")))
sketch8.addConstraint(Sketcher.Constraint("DistanceX", -1, 1, 0, 2, Q("2.3 mm")))
sketch8.addConstraint(Sketcher.Constraint("DistanceX", -1, 1, 4, 2, Q("22.45 mm")))
sketch8.setExpression("Constraints[29]", "Params.sketch8_height")
sketch8.setExpression("Constraints[30]", "Params.sketch8_width")
sketch8.setExpression("Constraints[31]", "Params.sketch8_width2")
pocket5 = body.newObject("PartDesign::Pocket", "Pocket004")
pocket5.Profile = sketch8
pocket5.setExpression("Length", "Params.pocket5_length")

doc.recompute()
